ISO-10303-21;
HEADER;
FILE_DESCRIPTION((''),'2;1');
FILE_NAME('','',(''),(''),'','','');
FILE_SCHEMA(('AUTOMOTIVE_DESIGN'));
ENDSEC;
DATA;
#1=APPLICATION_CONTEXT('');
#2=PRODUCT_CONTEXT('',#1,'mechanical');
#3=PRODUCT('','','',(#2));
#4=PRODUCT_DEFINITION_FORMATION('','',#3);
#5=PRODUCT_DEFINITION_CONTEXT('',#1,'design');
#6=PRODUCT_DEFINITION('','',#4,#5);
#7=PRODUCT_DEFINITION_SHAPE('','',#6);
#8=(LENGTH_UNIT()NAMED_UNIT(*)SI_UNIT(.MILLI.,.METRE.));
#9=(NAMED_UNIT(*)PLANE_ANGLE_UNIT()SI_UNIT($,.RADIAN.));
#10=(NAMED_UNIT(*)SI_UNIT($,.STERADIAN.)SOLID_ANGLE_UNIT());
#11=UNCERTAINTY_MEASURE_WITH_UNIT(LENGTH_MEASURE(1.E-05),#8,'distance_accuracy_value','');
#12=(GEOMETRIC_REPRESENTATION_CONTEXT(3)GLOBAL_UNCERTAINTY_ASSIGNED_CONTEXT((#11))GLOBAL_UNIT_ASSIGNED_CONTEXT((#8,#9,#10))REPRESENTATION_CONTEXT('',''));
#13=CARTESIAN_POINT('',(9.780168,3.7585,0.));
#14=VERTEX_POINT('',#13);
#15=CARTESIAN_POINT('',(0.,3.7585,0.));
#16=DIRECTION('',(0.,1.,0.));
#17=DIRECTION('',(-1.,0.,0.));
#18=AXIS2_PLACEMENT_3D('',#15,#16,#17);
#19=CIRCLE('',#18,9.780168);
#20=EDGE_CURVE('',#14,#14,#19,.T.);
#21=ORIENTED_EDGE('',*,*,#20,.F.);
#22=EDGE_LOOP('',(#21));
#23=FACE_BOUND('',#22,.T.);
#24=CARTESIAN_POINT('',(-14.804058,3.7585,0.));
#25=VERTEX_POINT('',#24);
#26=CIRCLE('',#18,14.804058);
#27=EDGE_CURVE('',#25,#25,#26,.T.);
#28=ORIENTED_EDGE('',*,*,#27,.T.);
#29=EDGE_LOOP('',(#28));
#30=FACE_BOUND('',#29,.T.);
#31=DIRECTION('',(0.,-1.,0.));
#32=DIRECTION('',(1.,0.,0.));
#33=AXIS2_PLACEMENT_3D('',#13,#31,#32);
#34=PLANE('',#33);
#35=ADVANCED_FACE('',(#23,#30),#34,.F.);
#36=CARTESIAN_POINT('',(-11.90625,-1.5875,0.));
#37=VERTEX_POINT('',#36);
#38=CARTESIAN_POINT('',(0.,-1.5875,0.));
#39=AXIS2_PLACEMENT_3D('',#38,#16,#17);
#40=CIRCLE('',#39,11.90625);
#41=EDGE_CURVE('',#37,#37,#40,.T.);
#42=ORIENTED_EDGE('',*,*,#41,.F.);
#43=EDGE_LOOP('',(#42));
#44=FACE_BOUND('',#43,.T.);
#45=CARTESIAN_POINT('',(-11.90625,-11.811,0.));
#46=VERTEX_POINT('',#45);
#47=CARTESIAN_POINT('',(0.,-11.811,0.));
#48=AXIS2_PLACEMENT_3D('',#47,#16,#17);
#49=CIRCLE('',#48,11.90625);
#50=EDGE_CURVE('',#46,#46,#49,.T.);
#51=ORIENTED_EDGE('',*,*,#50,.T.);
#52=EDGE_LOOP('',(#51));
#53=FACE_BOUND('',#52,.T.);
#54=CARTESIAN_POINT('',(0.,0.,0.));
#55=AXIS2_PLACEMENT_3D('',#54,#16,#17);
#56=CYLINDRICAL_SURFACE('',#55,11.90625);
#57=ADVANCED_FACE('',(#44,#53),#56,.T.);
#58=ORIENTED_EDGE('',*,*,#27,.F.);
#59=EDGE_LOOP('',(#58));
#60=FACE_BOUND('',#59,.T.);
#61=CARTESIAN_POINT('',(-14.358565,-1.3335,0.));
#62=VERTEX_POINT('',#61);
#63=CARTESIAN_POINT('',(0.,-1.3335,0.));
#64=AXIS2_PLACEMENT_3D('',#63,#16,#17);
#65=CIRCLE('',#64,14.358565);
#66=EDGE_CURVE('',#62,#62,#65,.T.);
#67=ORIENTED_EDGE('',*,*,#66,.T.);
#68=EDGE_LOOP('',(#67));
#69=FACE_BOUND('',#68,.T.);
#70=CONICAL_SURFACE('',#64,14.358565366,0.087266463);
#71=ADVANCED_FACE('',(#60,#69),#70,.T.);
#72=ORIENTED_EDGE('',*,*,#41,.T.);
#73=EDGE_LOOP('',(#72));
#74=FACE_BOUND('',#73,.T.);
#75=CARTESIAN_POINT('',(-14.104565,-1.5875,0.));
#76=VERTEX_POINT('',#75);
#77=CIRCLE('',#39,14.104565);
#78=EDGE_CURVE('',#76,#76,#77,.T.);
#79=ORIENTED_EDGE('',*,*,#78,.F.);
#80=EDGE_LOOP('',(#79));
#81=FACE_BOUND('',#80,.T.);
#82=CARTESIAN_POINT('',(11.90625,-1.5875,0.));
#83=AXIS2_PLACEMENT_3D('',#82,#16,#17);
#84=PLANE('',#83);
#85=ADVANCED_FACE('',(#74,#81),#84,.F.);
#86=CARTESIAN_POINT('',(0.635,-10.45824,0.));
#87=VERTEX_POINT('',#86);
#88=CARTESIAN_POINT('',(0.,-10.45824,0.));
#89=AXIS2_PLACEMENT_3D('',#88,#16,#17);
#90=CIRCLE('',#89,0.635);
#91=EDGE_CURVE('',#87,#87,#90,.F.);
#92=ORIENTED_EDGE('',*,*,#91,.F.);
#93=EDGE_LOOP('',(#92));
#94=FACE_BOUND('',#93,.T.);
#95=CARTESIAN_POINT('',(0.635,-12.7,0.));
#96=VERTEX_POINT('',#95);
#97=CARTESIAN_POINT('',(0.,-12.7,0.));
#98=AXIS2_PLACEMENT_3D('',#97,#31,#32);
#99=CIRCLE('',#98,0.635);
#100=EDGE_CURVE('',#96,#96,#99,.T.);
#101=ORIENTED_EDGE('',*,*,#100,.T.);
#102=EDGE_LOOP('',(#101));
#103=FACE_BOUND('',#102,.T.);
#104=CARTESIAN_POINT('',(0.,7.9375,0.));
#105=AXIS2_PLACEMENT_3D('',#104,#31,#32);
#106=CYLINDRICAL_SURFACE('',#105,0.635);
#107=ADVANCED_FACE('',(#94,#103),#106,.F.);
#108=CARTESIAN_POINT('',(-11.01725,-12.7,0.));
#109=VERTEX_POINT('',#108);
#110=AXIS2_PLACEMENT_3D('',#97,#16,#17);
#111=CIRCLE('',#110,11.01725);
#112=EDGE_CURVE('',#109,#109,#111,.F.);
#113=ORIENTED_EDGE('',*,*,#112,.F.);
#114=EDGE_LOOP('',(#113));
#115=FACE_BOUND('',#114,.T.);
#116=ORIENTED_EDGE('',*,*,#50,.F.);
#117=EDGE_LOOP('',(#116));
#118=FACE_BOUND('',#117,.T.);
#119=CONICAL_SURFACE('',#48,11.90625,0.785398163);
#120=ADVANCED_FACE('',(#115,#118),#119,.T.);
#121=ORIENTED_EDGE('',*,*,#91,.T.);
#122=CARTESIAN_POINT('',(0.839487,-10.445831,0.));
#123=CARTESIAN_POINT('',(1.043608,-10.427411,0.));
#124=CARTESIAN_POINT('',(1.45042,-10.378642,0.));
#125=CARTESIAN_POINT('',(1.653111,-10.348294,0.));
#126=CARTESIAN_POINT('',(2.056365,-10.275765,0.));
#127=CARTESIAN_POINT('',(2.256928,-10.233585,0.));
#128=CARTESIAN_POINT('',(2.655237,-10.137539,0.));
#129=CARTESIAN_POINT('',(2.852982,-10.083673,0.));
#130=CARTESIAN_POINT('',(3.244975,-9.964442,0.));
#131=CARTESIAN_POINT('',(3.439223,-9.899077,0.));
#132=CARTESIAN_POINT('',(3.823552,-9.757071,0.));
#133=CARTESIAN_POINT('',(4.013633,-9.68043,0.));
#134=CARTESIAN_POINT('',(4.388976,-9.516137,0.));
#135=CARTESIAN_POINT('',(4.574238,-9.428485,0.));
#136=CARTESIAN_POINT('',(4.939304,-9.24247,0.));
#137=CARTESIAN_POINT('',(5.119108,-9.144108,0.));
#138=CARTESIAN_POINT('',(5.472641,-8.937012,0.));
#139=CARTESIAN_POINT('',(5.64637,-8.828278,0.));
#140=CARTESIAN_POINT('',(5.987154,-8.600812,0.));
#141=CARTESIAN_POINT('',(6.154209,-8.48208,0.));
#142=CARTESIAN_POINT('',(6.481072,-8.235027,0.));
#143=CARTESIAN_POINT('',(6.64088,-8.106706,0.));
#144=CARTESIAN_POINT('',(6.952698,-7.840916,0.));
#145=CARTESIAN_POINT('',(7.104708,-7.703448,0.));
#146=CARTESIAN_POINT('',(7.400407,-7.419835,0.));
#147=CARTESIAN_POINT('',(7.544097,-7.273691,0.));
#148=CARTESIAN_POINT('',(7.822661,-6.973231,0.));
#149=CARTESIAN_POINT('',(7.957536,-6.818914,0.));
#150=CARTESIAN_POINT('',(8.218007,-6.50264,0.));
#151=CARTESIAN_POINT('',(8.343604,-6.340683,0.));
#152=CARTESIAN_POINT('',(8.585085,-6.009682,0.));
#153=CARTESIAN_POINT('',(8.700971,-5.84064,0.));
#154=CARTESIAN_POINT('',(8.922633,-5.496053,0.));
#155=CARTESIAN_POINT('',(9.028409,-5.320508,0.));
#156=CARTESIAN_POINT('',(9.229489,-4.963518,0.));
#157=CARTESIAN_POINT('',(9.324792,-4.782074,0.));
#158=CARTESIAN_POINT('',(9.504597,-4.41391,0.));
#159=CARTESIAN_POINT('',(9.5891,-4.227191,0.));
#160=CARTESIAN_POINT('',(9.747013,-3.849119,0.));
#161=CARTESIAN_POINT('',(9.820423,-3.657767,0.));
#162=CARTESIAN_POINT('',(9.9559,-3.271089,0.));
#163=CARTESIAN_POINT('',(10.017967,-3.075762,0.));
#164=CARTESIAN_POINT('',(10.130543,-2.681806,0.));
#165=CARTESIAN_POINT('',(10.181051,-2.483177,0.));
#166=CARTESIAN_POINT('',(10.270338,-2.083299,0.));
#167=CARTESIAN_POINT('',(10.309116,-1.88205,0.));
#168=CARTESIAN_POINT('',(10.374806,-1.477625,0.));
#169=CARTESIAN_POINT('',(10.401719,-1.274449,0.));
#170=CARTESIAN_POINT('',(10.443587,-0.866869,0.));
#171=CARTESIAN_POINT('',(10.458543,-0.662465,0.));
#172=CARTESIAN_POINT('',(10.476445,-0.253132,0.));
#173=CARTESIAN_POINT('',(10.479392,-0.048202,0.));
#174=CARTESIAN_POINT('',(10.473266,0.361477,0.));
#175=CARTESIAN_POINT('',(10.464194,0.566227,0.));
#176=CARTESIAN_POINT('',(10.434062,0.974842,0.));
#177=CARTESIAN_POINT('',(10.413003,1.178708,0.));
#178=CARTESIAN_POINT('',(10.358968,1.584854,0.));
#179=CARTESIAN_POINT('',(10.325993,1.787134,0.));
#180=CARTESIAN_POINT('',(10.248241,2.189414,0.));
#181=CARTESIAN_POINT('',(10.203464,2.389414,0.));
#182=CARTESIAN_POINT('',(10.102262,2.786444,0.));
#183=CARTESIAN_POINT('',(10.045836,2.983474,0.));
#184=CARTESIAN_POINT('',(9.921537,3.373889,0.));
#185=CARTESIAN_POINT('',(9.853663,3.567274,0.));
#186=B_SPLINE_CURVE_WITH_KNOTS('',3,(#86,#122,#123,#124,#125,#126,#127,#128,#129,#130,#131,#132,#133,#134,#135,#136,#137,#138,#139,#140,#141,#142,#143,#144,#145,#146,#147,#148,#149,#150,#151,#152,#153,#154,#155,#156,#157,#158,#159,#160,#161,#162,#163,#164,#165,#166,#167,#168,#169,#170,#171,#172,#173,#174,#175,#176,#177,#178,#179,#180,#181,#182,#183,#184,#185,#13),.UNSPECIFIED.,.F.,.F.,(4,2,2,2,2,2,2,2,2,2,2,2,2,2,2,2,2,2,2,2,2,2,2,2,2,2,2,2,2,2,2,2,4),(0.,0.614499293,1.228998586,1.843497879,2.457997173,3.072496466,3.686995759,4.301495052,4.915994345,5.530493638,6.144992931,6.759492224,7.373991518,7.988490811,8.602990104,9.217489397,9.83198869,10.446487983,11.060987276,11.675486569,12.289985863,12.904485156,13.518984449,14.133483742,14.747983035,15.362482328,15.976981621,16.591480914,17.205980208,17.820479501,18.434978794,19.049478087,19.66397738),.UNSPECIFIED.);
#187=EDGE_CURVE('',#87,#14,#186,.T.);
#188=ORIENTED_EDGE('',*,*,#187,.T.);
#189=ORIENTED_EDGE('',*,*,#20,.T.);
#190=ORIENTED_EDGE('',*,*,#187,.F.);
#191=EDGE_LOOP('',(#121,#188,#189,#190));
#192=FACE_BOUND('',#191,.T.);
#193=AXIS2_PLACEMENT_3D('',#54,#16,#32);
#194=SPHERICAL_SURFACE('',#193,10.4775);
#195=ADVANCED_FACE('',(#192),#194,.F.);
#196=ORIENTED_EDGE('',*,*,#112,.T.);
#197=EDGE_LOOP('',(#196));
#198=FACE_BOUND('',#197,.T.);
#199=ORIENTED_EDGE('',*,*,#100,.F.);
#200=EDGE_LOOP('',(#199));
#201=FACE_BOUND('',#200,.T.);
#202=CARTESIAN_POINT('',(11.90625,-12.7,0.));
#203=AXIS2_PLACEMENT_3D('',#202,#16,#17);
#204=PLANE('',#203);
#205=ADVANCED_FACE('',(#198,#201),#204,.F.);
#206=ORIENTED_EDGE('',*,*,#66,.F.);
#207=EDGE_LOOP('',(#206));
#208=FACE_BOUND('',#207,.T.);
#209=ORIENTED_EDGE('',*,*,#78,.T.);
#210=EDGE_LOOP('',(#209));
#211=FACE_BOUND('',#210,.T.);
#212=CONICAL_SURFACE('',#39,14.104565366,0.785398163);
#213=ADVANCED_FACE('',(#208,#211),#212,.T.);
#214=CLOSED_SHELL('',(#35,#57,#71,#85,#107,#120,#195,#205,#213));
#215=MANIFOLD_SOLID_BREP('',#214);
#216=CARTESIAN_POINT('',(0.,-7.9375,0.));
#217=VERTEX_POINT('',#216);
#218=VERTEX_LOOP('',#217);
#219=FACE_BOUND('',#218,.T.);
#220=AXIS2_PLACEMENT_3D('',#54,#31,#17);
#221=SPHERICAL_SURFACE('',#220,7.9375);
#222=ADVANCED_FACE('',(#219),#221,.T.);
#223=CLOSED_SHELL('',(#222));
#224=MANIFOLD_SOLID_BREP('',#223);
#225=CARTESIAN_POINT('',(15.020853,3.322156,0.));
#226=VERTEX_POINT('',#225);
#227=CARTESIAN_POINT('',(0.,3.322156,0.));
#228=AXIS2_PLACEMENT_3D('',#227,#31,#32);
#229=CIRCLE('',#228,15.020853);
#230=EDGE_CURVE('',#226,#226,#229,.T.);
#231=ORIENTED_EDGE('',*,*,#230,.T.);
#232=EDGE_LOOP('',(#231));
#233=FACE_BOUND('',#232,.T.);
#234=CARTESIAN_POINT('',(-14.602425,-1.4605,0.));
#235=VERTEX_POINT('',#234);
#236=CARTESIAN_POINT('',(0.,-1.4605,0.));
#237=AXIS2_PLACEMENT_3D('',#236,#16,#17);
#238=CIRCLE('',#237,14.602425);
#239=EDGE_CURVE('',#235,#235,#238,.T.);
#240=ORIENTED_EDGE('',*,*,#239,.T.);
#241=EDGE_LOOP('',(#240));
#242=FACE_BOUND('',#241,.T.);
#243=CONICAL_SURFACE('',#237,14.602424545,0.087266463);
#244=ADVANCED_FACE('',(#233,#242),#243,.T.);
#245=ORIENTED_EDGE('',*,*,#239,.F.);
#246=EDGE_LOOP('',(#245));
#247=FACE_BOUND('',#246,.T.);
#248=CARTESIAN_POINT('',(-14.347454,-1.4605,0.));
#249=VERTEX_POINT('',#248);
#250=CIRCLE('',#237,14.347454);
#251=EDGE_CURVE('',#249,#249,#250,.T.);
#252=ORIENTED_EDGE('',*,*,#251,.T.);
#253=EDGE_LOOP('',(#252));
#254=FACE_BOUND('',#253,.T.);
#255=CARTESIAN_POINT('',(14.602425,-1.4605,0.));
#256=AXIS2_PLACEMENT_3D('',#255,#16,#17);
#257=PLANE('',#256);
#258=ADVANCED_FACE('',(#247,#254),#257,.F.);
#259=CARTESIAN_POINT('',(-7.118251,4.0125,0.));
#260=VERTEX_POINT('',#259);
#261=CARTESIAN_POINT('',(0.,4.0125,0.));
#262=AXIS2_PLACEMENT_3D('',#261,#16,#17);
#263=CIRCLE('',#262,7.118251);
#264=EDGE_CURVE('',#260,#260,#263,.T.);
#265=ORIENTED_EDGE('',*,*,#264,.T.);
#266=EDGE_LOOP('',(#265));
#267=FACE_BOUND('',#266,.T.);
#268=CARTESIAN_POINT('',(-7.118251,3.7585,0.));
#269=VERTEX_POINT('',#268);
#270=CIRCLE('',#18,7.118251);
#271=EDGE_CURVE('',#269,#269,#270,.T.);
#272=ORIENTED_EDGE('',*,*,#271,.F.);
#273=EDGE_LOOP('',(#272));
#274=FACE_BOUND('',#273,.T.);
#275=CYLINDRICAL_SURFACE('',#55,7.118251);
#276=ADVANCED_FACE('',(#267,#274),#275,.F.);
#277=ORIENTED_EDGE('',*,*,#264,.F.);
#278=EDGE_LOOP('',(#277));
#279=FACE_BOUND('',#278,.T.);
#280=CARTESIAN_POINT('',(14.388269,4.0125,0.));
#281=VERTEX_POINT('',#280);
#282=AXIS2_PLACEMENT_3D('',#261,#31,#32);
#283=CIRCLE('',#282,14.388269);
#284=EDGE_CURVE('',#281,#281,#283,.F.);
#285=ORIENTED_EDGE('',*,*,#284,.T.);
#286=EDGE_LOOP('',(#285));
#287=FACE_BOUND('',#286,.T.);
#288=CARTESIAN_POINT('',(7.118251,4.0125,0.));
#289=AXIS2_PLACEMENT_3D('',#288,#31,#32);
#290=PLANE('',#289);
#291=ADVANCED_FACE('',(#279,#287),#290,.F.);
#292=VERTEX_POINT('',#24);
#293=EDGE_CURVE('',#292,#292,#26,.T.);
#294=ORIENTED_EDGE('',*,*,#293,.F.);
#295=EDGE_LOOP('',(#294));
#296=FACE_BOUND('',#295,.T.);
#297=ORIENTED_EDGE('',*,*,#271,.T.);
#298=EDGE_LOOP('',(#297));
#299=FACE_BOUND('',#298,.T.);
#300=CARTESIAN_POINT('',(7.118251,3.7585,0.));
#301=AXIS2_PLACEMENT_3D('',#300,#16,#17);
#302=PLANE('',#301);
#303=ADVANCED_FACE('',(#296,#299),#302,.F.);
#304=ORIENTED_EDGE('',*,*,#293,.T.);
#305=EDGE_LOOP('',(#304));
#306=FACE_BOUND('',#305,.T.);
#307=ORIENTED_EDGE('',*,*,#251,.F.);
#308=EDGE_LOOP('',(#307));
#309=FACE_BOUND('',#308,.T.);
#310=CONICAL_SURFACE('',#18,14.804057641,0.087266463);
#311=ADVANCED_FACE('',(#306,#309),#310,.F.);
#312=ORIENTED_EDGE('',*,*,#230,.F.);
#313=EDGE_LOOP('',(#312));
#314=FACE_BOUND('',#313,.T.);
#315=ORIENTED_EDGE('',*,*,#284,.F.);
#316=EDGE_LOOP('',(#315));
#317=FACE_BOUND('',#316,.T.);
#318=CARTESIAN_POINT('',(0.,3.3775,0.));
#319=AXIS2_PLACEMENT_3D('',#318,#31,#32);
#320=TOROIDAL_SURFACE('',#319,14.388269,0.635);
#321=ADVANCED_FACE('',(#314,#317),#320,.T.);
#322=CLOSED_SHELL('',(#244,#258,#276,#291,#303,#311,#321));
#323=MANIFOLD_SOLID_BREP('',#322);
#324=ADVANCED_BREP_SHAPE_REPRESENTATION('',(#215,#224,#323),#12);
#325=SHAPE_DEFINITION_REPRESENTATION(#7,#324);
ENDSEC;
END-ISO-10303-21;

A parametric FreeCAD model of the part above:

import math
import FreeCAD as App
import Part
import Sketcher
Q = App.Units.Quantity


def edges_at(feature, points):
    """Names of the edges that pass closest to the given points."""
    edges = feature.Shape.Edges
    near = lambda p: min(range(len(edges)), key=lambda i: edges[i].distToShape(Part.Vertex(*p))[0])
    return sorted({f"Edge{near(p) + 1}" for p in points})

doc = App.newDocument("Part")
body = doc.addObject("PartDesign::Body", "Body")

# Sketch on XY plane
sketch1 = body.newObject("Sketcher::SketchObject", "Sketch")
sketch1.AttachmentSupport = (doc.getObject("XY_Plane"), [""])
sketch1.MapMode = "FlatFace"
sketch1.addGeometry([
    Part.LineSegment(App.Vector(0, 8, 0), App.Vector(0, -8, 0)),
    Part.ArcOfCircle(Part.Circle(App.Vector(0, 0, 0), App.Vector(0, 0, 1), 8), math.radians(-90), math.radians(90)),
], False)
sketch1.addConstraint([
    Sketcher.Constraint("Coincident", 0, 1, 1, 2),
    Sketcher.Constraint("Coincident", 1, 1, 0, 2),
    Sketcher.Constraint("Vertical", 0),
    Sketcher.Constraint("Coincident", 1, 3, -1, 1),
    Sketcher.Constraint("PointOnObject", 0, 1, -2),
    Sketcher.Constraint("Radius", 1, Q("0.3125 in")),
])
revolution = body.newObject("PartDesign::Revolution", "Revolution")
revolution.Profile = sketch1
revolution.ReferenceAxis = (sketch1, ["V_Axis"])
revolution.Angle = 360
body2 = doc.addObject("PartDesign::Body", "Body001")

# Sketch on XY plane
sketch2 = body2.newObject("Sketcher::SketchObject", "Sketch001")
sketch2.AttachmentSupport = (doc.getObject("XY_Plane001"), [""])
sketch2.MapMode = "FlatFace"
sketch2.addGeometry([
    Part.LineSegment(App.Vector(14.8, 3.76, 0), App.Vector(14.36, -1.33, 0)),  # 0
    Part.LineSegment(App.Vector(14.36, -1.33, 0), App.Vector(14.35, -1.46, 0)),  # 1
    Part.LineSegment(App.Vector(14.35, -1.46, 0), App.Vector(14.6, -1.46, 0)),  # 2
    Part.LineSegment(App.Vector(14.6, -1.46, 0), App.Vector(15.08, 4.01, 0)),  # 3
    Part.LineSegment(App.Vector(15.08, 4.01, 0), App.Vector(7.12, 4.01, 0)),  # 4
    Part.LineSegment(App.Vector(7.12, 4.01, 0), App.Vector(7.12, 3.76, 0)),  # 5
    Part.LineSegment(App.Vector(7.12, 3.76, 0), App.Vector(14.8, 3.76, 0)),  # 6
], False)
sketch2.addConstraint([
    Sketcher.Constraint("Coincident", 0, 2, 1, 1),
    Sketcher.Constraint("Coincident", 1, 2, 2, 1),
    Sketcher.Constraint("Coincident", 2, 2, 3, 1),
    Sketcher.Constraint("Coincident", 3, 2, 4, 1),
    Sketcher.Constraint("Coincident", 4, 2, 5, 1),
    Sketcher.Constraint("Coincident", 5, 2, 6, 1),
    Sketcher.Constraint("Coincident", 6, 2, 0, 1),
    Sketcher.Constraint("Horizontal", 2),
    Sketcher.Constraint("Horizontal", 4),
    Sketcher.Constraint("Vertical", 5),
    Sketcher.Constraint("Horizontal", 6),
    Sketcher.Constraint("Parallel", 0, 1),
    Sketcher.Constraint("Parallel", 1, 3),
    Sketcher.Constraint("Angle", 0, Q("-95 deg")),
    Sketcher.Constraint("DistanceY", 5, 2, 5, 1, Q("0.01 in")),
    Sketcher.Constraint("DistanceX", -1, 1, 3, 2, Q("0.59375 in")),
    Sketcher.Constraint("DistanceY", 1, 2, 0, 2, Q("0.005 in")),
    Sketcher.Constraint("DistanceX", 4, 2, 4, 1, Q("7.962999 mm")),
    Sketcher.Constraint("DistanceY", 0, 2, -1, 1, Q("0.0525 in")),
    Sketcher.Constraint("DistanceX", 2, 1, 2, 2, Q("0.25497 mm")),
    Sketcher.Constraint("DistanceY", -1, 1, 3, 2, Q("4.0125 mm")),
])
revolution2 = body2.newObject("PartDesign::Revolution", "Revolution001")
revolution2.Profile = sketch2
revolution2.ReferenceAxis = (sketch2, ["V_Axis"])
revolution2.Angle = 360
doc.recompute()

fillet = body2.newObject("PartDesign::Fillet", "Fillet")
fillet.Base = (revolution2, edges_at(revolution2, [(15.081, 4.013, 0)]))
fillet.Radius = Q("0.025 in")
body3 = doc.addObject("PartDesign::Body", "Body002")

# Sketch on XY plane
sketch3 = body3.newObject("Sketcher::SketchObject", "Sketch002")
sketch3.AttachmentSupport = (doc.getObject("XY_Plane002"), [""])
sketch3.MapMode = "FlatFace"
sketch3.addGeometry([
    Part.LineSegment(App.Vector(11.91, -1.59, 0), App.Vector(14.1, -1.59, 0)),  # 0
    Part.LineSegment(App.Vector(14.1, -1.59, 0), App.Vector(14.36, -1.33, 0)),  # 1
    Part.LineSegment(App.Vector(14.36, -1.33, 0), App.Vector(14.8, 3.76, 0)),  # 2
    Part.LineSegment(App.Vector(14.8, 3.76, 0), App.Vector(9.78, 3.76, 0)),  # 3
    Part.ArcOfCircle(Part.Circle(App.Vector(0, 0, 0), App.Vector(0, 0, 1), 10.48), math.radians(-90), math.radians(21)),  # 4
    Part.LineSegment(App.Vector(0, -10.48, 0), App.Vector(0, -12.7, 0)),  # 5
    Part.LineSegment(App.Vector(0, -12.7, 0), App.Vector(11.91, -12.7, 0)),  # 6
    Part.LineSegment(App.Vector(11.91, -12.7, 0), App.Vector(11.91, -1.59, 0)),  # 7
], False)
sketch3.addConstraint([
    Sketcher.Constraint("Coincident", 0, 2, 1, 1),
    Sketcher.Constraint("Coincident", 1, 2, 2, 1),
    Sketcher.Constraint("Coincident", 2, 2, 3, 1),
    Sketcher.Constraint("Coincident", 3, 2, 4, 2),
    Sketcher.Constraint("Coincident", 4, 1, 5, 1),
    Sketcher.Constraint("Coincident", 5, 2, 6, 1),
    Sketcher.Constraint("Coincident", 6, 2, 7, 1),
    Sketcher.Constraint("Coincident", 7, 2, 0, 1),
    Sketcher.Constraint("Horizontal", 0),
    Sketcher.Constraint("Horizontal", 3),
    Sketcher.Constraint("Vertical", 5),
    Sketcher.Constraint("Horizontal", 6),
    Sketcher.Constraint("Vertical", 7),
    Sketcher.Constraint("Coincident", 4, 3, -1, 1),
    Sketcher.Constraint("PointOnObject", 4, 1, -2),
    Sketcher.Constraint("Angle", 1, Q("45 deg")),
    Sketcher.Constraint("Angle", 2, Q("85 deg")),
    Sketcher.Constraint("DistanceY", 5, 2, -1, 1, Q("0.5 in")),
    Sketcher.Constraint("Radius", 4, Q("0.4125 in")),
    Sketcher.Constraint("DistanceX", 6, 1, 6, 2, Q("0.46875 in")),
    Sketcher.Constraint("DistanceY", 7, 1, 7, 2, Q("0.4375 in")),
    Sketcher.Constraint("DistanceX", 0, 2, 1, 2, Q("0.01 in")),
    Sketcher.Constraint("DistanceX", 3, 2, 3, 1, Q("5.02389 mm")),
    Sketcher.Constraint("DistanceY", -1, 1, 2, 2, Q("3.7585 mm")),
])
revolution3 = body3.newObject("PartDesign::Revolution", "Revolution002")
revolution3.Profile = sketch3
revolution3.ReferenceAxis = (sketch3, ["V_Axis"])
revolution3.Angle = 360

# Sketch on XZ plane
sketch4 = body3.newObject("Sketcher::SketchObject", "Sketch003")
sketch4.AttachmentSupport = (doc.getObject("XZ_Plane002"), [""])
sketch4.MapMode = "FlatFace"
sketch4.AttachmentOffset = App.Placement(App.Vector(0, 0, 0.5 * 25.4), App.Rotation())
sketch4.addGeometry(Part.Circle(App.Vector(0, 0, 0), App.Vector(0, 0, 1), 0.6), False)
sketch4.addConstraint([
    Sketcher.Constraint("Coincident", 0, 3, -1, 1),
    Sketcher.Constraint("Diameter", 0, Q("0.05 in")),
])
pocket1 = body3.newObject("PartDesign::Pocket", "Pocket")
pocket1.Profile = sketch4
pocket1.Type = "ThroughAll"
doc.recompute()

chamfer = body3.newObject("PartDesign::Chamfer", "Chamfer")
chamfer.Base = (pocket1, edges_at(pocket1, [(11.906, -12.7, 0)]))
chamfer.Size = Q("0.035 in")

doc.recompute()
